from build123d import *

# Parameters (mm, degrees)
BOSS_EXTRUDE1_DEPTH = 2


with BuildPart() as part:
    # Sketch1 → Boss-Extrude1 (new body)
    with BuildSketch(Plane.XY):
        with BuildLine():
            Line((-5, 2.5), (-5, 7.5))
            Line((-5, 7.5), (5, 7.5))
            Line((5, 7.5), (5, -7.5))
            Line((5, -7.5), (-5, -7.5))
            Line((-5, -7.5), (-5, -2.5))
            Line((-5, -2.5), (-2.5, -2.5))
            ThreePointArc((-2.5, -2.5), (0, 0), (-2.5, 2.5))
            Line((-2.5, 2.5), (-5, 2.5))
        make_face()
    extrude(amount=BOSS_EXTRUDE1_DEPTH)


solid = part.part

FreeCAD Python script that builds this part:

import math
import FreeCAD as App
import Part
import Sketcher

V = App.Vector

doc = App.newDocument("Part")
body = doc.addObject("PartDesign::Body", "Body")

# Sketch on XY plane
sketch1 = body.newObject("Sketcher::SketchObject", "Sketch")
sketch1.AttachmentSupport = (doc.getObject("XY_Plane"), [""])
sketch1.MapMode = "FlatFace"
sketch1.addGeometry([
    Part.LineSegment(V(-5, 7.5, 0), V(-5, 2.5, 0)),  # 0
    Part.LineSegment(V(-5, 2.5, 0), V(-2.5, 2.5, 0)),  # 1
    Part.ArcOfCircle(Part.Circle(V(-2.5, 0, 0), V(0, 0, 1), 2.5), math.radians(-90), math.radians(90)),  # 2
    Part.LineSegment(V(-2.5, -2.5, 0), V(-5, -2.5, 0)),  # 3
    Part.LineSegment(V(-5, -2.5, 0), V(-5, -7.5, 0)),  # 4
    Part.LineSegment(V(-5, -7.5, 0), V(5, -7.5, 0)),  # 5
    Part.LineSegment(V(5, -7.5, 0), V(5, 7.5, 0)),  # 6
    Part.LineSegment(V(5, 7.5, 0), V(-5, 7.5, 0)),  # 7
], False)
sketch1.addConstraint([
    Sketcher.Constraint("Coincident", 0, 2, 1, 1),
    Sketcher.Constraint("Tangent", 1, 2, 2, 2),
    Sketcher.Constraint("Tangent", 2, 1, 3, 1),
    Sketcher.Constraint("Coincident", 3, 2, 4, 1),
    Sketcher.Constraint("Coincident", 4, 2, 5, 1),
    Sketcher.Constraint("Coincident", 5, 2, 6, 1),
    Sketcher.Constraint("Coincident", 6, 2, 7, 1),
    Sketcher.Constraint("Coincident", 7, 2, 0, 1),
    Sketcher.Constraint("Vertical", 0),
    Sketcher.Constraint("Horizontal", 1),
    Sketcher.Constraint("Horizontal", 3),
    Sketcher.Constraint("Vertical", 4),
    Sketcher.Constraint("Horizontal", 5),
    Sketcher.Constraint("Vertical", 6),
    Sketcher.Constraint("Horizontal", 7),
    Sketcher.Constraint("Symmetric", 4, 2, 6, 2, -1, 1),
    Sketcher.Constraint("Symmetric", 0, 2, 3, 2, -1),
    Sketcher.Constraint("Radius", 2, 2.5),
    Sketcher.Constraint("DistanceX", 5, 1, 5, 2, 10.0),
    Sketcher.Constraint("DistanceY", 0, 2, 0, 1, 5.0),
    Sketcher.Constraint("DistanceX", 1, 1, 1, 2, 2.5),
])
pad1 = body.newObject("PartDesign::Pad", "Pad")
pad1.Profile = sketch1
pad1.Length = 2

doc.recompute()
